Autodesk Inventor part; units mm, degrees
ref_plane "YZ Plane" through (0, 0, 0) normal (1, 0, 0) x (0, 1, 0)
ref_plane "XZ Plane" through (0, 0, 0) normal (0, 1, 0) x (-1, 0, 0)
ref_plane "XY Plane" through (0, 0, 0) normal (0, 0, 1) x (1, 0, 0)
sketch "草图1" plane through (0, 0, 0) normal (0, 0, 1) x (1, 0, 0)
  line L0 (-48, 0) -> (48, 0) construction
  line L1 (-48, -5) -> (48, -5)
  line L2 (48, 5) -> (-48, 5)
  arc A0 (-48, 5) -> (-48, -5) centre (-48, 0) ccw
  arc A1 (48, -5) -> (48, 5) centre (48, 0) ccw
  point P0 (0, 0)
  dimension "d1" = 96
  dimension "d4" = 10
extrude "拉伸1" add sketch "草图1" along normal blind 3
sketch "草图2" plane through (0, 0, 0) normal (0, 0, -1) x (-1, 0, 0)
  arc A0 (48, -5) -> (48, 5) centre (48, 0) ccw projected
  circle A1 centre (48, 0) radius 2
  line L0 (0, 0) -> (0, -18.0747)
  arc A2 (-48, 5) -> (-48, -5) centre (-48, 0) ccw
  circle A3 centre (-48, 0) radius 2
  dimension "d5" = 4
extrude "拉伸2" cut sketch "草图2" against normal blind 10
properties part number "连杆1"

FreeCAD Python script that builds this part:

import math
import FreeCAD as App
import Part
import Sketcher
Q = App.Units.Quantity

doc = App.newDocument("Part")
params = doc.addObject("Spreadsheet::Sheet", "Params")
for row, (alias, value) in enumerate([
    ("sketch1_radius", "5 mm"),
    ("sketch1_width", "96 mm"),
    ("pad1_length", "3 mm"),
    ("sketch2_diameter", "4 mm"),
    ("pocket1_length", "10 mm"),
], start=1):
    params.set(f"A{row}", alias)
    params.set(f"B{row}", "=" + value)
    params.setAlias(f"B{row}", alias)

body = doc.addObject("PartDesign::Body", "Body")

# Sketch on XY plane
sketch1 = body.newObject("Sketcher::SketchObject", "Sketch")
sketch1.AttachmentSupport = (doc.getObject("XY_Plane"), [""])
sketch1.MapMode = "FlatFace"
sketch1.addGeometry(Part.ArcOfCircle(Part.Circle(App.Vector(-48, 0, 0), App.Vector(0, 0, 1), 5), math.radians(90), math.radians(270)), False)
sketch1.addGeometry(Part.LineSegment(App.Vector(-48, -5, 0), App.Vector(48, -5, 0)), False)
sketch1.addGeometry(Part.ArcOfCircle(Part.Circle(App.Vector(48, 0, 0), App.Vector(0, 0, 1), 5), math.radians(-90), math.radians(90)), False)
sketch1.addGeometry(Part.LineSegment(App.Vector(48, 5, 0), App.Vector(-48, 5, 0)), False)
sketch1.addConstraint(Sketcher.Constraint("Tangent", 0, 2, 1, 1))
sketch1.addConstraint(Sketcher.Constraint("Tangent", 1, 2, 2, 1))
sketch1.addConstraint(Sketcher.Constraint("Tangent", 2, 2, 3, 1))
sketch1.addConstraint(Sketcher.Constraint("Tangent", 3, 2, 0, 1))
sketch1.addConstraint(Sketcher.Constraint("Horizontal", 1))
sketch1.addConstraint(Sketcher.Constraint("Horizontal", 3))
sketch1.addConstraint(Sketcher.Constraint("Symmetric", 0, 3, 2, 3, -1, 1))
sketch1.addConstraint(Sketcher.Constraint("Radius", 0, Q("5 mm")))
sketch1.addConstraint(Sketcher.Constraint("DistanceX", 1, 1, 1, 2, Q("96 mm")))
sketch1.setExpression("Constraints[7]", "Params.sketch1_radius")
sketch1.setExpression("Constraints[8]", "Params.sketch1_width")
pad1 = body.newObject("PartDesign::Pad", "Pad")
pad1.Profile = sketch1
pad1.setExpression("Length", "Params.pad1_length")

# Sketch on XY plane
sketch2 = body.newObject("Sketcher::SketchObject", "Sketch001")
sketch2.AttachmentSupport = (doc.getObject("XY_Plane"), [""])
sketch2.MapMode = "FlatFace"
sketch2.addGeometry(Part.Circle(App.Vector(-48, 0, 0), App.Vector(0, 0, 1), 2), False)
sketch2.addGeometry(Part.Circle(App.Vector(48, 0, 0), App.Vector(0, 0, 1), 2), False)
sketch2.addConstraint(Sketcher.Constraint("Equal", 0, 1))
sketch2.addConstraint(Sketcher.Constraint("Symmetric", 0, 3, 1, 3, -1, 1))
sketch2.addConstraint(Sketcher.Constraint("PointOnObject", 0, 3, -1))
sketch2.addConstraint(Sketcher.Constraint("Diameter", 0, Q("4 mm")))
sketch2.addConstraint(Sketcher.Constraint("DistanceX", 0, 3, -1, 1, Q("48 mm")))
sketch2.setExpression("Constraints[3]", "Params.sketch2_diameter")
pocket1 = body.newObject("PartDesign::Pocket", "Pocket")
pocket1.Profile = sketch2
pocket1.setExpression("Length", "Params.pocket1_length")
pocket1.Reversed = True

doc.recompute()
